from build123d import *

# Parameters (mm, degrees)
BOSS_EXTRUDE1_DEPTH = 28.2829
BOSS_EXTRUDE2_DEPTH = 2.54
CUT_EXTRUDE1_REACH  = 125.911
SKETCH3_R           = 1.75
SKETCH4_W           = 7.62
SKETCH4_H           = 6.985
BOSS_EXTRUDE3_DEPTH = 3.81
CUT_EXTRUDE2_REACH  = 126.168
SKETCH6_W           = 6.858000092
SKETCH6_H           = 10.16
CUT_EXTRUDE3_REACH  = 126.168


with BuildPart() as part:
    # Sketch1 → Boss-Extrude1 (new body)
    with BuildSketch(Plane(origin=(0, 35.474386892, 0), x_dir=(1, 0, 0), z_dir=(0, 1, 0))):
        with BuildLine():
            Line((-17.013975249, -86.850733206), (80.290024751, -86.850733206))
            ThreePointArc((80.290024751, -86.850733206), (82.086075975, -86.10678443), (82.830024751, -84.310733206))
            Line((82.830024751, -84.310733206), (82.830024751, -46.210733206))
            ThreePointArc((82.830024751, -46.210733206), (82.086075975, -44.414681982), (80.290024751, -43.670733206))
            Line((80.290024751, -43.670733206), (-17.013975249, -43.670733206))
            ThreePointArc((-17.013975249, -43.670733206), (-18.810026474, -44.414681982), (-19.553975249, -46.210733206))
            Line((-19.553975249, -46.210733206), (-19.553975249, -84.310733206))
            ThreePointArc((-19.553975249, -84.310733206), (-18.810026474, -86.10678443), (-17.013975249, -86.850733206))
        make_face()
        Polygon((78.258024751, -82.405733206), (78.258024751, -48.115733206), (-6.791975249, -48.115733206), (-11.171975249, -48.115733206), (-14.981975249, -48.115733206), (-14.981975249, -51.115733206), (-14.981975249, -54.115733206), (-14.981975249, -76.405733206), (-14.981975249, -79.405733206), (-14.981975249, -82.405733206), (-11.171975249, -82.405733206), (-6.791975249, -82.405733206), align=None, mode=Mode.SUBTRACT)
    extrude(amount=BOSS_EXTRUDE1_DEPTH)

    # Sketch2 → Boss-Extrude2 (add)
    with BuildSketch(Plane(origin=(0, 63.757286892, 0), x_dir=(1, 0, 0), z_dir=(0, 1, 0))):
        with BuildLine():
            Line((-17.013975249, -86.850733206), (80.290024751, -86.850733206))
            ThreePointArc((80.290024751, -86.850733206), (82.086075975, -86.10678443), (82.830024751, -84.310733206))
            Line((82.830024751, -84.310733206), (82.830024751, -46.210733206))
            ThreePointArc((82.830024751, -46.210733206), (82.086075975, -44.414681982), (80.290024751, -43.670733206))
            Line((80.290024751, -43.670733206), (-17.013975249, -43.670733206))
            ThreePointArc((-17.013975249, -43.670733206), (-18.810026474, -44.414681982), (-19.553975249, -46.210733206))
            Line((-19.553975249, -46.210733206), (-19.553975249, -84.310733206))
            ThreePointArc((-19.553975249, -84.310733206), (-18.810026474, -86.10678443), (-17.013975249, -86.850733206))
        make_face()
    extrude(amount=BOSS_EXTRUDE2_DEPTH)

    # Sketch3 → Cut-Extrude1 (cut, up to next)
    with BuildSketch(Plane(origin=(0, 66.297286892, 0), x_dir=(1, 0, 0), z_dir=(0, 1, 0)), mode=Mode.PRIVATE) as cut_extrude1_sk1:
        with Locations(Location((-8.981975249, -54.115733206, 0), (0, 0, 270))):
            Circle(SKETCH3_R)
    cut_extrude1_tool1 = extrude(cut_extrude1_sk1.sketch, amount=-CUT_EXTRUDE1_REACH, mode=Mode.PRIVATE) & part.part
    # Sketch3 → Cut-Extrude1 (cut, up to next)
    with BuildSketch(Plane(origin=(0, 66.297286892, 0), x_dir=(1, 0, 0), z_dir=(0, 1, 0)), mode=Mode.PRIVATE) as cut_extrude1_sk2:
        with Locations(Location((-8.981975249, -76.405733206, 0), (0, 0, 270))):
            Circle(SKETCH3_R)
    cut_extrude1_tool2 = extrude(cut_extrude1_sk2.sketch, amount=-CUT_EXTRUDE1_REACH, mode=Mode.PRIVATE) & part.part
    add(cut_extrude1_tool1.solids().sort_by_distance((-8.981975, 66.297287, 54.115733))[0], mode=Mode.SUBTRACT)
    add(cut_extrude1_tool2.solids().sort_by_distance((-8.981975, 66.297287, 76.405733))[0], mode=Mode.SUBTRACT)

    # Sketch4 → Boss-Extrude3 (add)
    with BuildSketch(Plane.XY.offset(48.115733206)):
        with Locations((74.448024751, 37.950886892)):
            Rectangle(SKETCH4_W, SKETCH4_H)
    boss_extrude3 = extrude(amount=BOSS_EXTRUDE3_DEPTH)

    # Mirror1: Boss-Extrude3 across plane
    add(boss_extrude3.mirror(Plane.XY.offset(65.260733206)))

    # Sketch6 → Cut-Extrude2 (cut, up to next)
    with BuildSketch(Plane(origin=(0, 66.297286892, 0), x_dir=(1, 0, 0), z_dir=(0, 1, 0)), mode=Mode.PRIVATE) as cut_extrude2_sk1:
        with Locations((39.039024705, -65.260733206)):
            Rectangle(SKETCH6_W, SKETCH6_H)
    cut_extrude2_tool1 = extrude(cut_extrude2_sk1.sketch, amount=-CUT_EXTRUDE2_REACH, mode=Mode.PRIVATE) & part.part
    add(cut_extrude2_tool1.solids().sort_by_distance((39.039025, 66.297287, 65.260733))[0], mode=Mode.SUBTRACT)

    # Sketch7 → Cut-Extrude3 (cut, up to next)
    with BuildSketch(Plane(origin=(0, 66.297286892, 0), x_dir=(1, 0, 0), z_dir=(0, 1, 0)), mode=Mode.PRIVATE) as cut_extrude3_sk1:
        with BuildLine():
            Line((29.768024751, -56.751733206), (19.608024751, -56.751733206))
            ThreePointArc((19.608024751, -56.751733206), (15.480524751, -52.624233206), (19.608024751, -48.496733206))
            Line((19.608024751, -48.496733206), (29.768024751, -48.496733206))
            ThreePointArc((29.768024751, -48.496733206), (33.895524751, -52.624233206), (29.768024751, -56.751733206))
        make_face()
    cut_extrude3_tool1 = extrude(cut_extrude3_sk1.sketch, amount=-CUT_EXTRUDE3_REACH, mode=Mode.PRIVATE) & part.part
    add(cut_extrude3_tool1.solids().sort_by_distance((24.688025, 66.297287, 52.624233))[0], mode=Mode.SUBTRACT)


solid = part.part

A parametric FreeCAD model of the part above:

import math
import FreeCAD as App
import Part
import Sketcher
from FreeCAD import Vector
Q = App.Units.Quantity

doc = App.newDocument("Part")
body = doc.addObject("PartDesign::Body", "Body")

sketch1 = doc.addObject("Sketcher::SketchObject", "Sketch")
body.addObject(sketch1)
sketch1.AttachmentSupport = (doc.XZ_Plane, [""])
sketch1.MapMode = "FlatFace"
sketch1.AttachmentOffset = App.Placement(Vector(0, 0, -35.474387), App.Rotation())
sketch1.addGeometry([
    Part.LineSegment(Vector(-17, 86.9, 0), Vector(80.3, 86.9, 0)),
    Part.ArcOfCircle(Part.Circle(Vector(80.3, 84.3, 0), Vector(0, 0, 1), 2.5), math.radians(0), math.radians(90)),
    Part.LineSegment(Vector(82.8, 84.3, 0), Vector(82.8, 46.2, 0)),
    Part.ArcOfCircle(Part.Circle(Vector(80.3, 46.2, 0), Vector(0, 0, 1), 2.5), math.radians(-90), math.radians(0)),
    Part.LineSegment(Vector(80.3, 43.7, 0), Vector(-17, 43.7, 0)),
    Part.ArcOfCircle(Part.Circle(Vector(-17, 46.2, 0), Vector(0, 0, 1), 2.5), math.radians(180), math.radians(270)),
    Part.LineSegment(Vector(-19.6, 46.2, 0), Vector(-19.6, 84.3, 0)),
    Part.ArcOfCircle(Part.Circle(Vector(-17, 84.3, 0), Vector(0, 0, 1), 2.5), math.radians(90), math.radians(180)),
    Part.LineSegment(Vector(78.3, 48.1, 0), Vector(78.3, 82.4, 0)),
    Part.LineSegment(Vector(78.3, 82.4, 0), Vector(-15, 82.4, 0)),
    Part.LineSegment(Vector(-15, 82.4, 0), Vector(-15, 48.1, 0)),
    Part.LineSegment(Vector(-15, 48.1, 0), Vector(78.3, 48.1, 0)),
], False)
sketch1.addConstraint([
    Sketcher.Constraint("Tangent", 0, 2, 1, 2),
    Sketcher.Constraint("Tangent", 1, 1, 2, 1),
    Sketcher.Constraint("Tangent", 2, 2, 3, 2),
    Sketcher.Constraint("Tangent", 3, 1, 4, 1),
    Sketcher.Constraint("Tangent", 4, 2, 5, 2),
    Sketcher.Constraint("Tangent", 5, 1, 6, 1),
    Sketcher.Constraint("Tangent", 6, 2, 7, 2),
    Sketcher.Constraint("Tangent", 7, 1, 0, 1),
    Sketcher.Constraint("Coincident", 8, 2, 9, 1),
    Sketcher.Constraint("Coincident", 9, 2, 10, 1),
    Sketcher.Constraint("Coincident", 10, 2, 11, 1),
    Sketcher.Constraint("Coincident", 11, 2, 8, 1),
    Sketcher.Constraint("Horizontal", 0),
    Sketcher.Constraint("Vertical", 2),
    Sketcher.Constraint("Horizontal", 4),
    Sketcher.Constraint("Vertical", 6),
    Sketcher.Constraint("Vertical", 8),
    Sketcher.Constraint("Horizontal", 9),
    Sketcher.Constraint("Vertical", 10),
    Sketcher.Constraint("Horizontal", 11),
    Sketcher.Constraint("Equal", 1, 3),
    Sketcher.Constraint("Equal", 3, 5),
    Sketcher.Constraint("Equal", 5, 7),
    Sketcher.Constraint("Radius", 1, Q("0.1 in")),
    Sketcher.Constraint("DistanceY", 2, 2, 2, 1, Q("1.5 in")),
    Sketcher.Constraint("DistanceY", 8, 1, 8, 2, Q("1.35 in")),
    Sketcher.Constraint("DistanceX", 8, 2, 1, 3, Q("0.08 in")),
    Sketcher.Constraint("DistanceX", 7, 3, 9, 2, Q("0.08 in")),
    Sketcher.Constraint("DistanceY", 8, 2, 1, 3, Q("0.075 in")),
    Sketcher.Constraint("DistanceX", 0, 1, 0, 2, 97.304),
    Sketcher.Constraint("DistanceX", -1, 1, 1, 3, 80.290025),
    Sketcher.Constraint("DistanceY", -1, 1, 1, 3, 84.310733),
])
pad1 = doc.addObject("PartDesign::Pad", "Pad")
body.addObject(pad1)
pad1.Profile = sketch1
pad1.Length = Q("1.1135 in")
pad1.Reversed = True

sketch2 = doc.addObject("Sketcher::SketchObject", "Sketch001")
body.addObject(sketch2)
sketch2.AttachmentSupport = (doc.XZ_Plane, [""])
sketch2.MapMode = "FlatFace"
sketch2.AttachmentOffset = App.Placement(Vector(0, 0, -63.757287), App.Rotation())
sketch2.addGeometry([
    Part.LineSegment(Vector(-17, 86.9, 0), Vector(80.3, 86.9, 0)),
    Part.ArcOfCircle(Part.Circle(Vector(80.3, 84.3, 0), Vector(0, 0, 1), 2.5), math.radians(0), math.radians(90)),
    Part.LineSegment(Vector(82.8, 84.3, 0), Vector(82.8, 46.2, 0)),
    Part.ArcOfCircle(Part.Circle(Vector(80.3, 46.2, 0), Vector(0, 0, 1), 2.5), math.radians(-90), math.radians(0)),
    Part.LineSegment(Vector(80.3, 43.7, 0), Vector(-17, 43.7, 0)),
    Part.ArcOfCircle(Part.Circle(Vector(-17, 46.2, 0), Vector(0, 0, 1), 2.5), math.radians(180), math.radians(270)),
    Part.LineSegment(Vector(-19.6, 46.2, 0), Vector(-19.6, 84.3, 0)),
    Part.ArcOfCircle(Part.Circle(Vector(-17, 84.3, 0), Vector(0, 0, 1), 2.5), math.radians(90), math.radians(180)),
], False)
sketch2.addConstraint([
    Sketcher.Constraint("Tangent", 0, 2, 1, 2),
    Sketcher.Constraint("Tangent", 1, 1, 2, 1),
    Sketcher.Constraint("Tangent", 2, 2, 3, 2),
    Sketcher.Constraint("Tangent", 3, 1, 4, 1),
    Sketcher.Constraint("Tangent", 4, 2, 5, 2),
    Sketcher.Constraint("Tangent", 5, 1, 6, 1),
    Sketcher.Constraint("Tangent", 6, 2, 7, 2),
    Sketcher.Constraint("Tangent", 7, 1, 0, 1),
    Sketcher.Constraint("Horizontal", 0),
    Sketcher.Constraint("Vertical", 2),
    Sketcher.Constraint("Horizontal", 4),
    Sketcher.Constraint("Vertical", 6),
    Sketcher.Constraint("Equal", 1, 3),
    Sketcher.Constraint("Equal", 3, 5),
    Sketcher.Constraint("Equal", 5, 7),
    Sketcher.Constraint("Radius", 1, Q("0.1 in")),
    Sketcher.Constraint("DistanceY", 2, 2, 2, 1, Q("1.5 in")),
    Sketcher.Constraint("DistanceX", 0, 1, 0, 2, 97.304),
    Sketcher.Constraint("DistanceX", -1, 1, 1, 3, 80.290025),
    Sketcher.Constraint("DistanceY", -1, 1, 1, 3, 84.310733),
])
pad2 = doc.addObject("PartDesign::Pad", "Pad001")
body.addObject(pad2)
pad2.Profile = sketch2
pad2.Length = Q("0.1 in")
pad2.Reversed = True

sketch3 = doc.addObject("Sketcher::SketchObject", "Sketch002")
body.addObject(sketch3)
sketch3.AttachmentSupport = (doc.XZ_Plane, [""])
sketch3.MapMode = "FlatFace"
sketch3.AttachmentOffset = App.Placement(Vector(0, 0, -66.297287), App.Rotation())
sketch3.addGeometry(Part.Circle(Vector(-9, 54.1, 0), Vector(0, 0, 1), 1.8), False)
sketch3.addConstraint([
    Sketcher.Constraint("Diameter", 0, 3.5),
    Sketcher.Constraint("DistanceX", 0, 3, -1, 1, 8.981975),
    Sketcher.Constraint("DistanceY", -1, 1, 0, 3, 54.115733),
])
pocket1 = doc.addObject("PartDesign::Pocket", "Pocket")
body.addObject(pocket1)
pocket1.Profile = sketch3
pocket1.Type = "UpToFirst"
pocket1.Reversed = True

sketch4 = doc.addObject("Sketcher::SketchObject", "Sketch003")
body.addObject(sketch4)
sketch4.AttachmentSupport = (doc.XZ_Plane, [""])
sketch4.MapMode = "FlatFace"
sketch4.AttachmentOffset = App.Placement(Vector(0, 0, -66.297287), App.Rotation())
sketch4.addGeometry(Part.Circle(Vector(-9, 76.4, 0), Vector(0, 0, 1), 1.8), False)
sketch4.addConstraint([
    Sketcher.Constraint("Diameter", 0, 3.5),
    Sketcher.Constraint("DistanceX", 0, 3, -1, 1, 8.981975),
    Sketcher.Constraint("DistanceY", -1, 1, 0, 3, 76.405733),
])
pocket2 = doc.addObject("PartDesign::Pocket", "Pocket001")
body.addObject(pocket2)
pocket2.Profile = sketch4
pocket2.Type = "UpToFirst"
pocket2.Reversed = True

sketch5 = doc.addObject("Sketcher::SketchObject", "Sketch004")
body.addObject(sketch5)
sketch5.AttachmentSupport = (doc.XY_Plane, [""])
sketch5.MapMode = "FlatFace"
sketch5.AttachmentOffset = App.Placement(Vector(0, 0, 48.115733), App.Rotation())
sketch5.addGeometry([
    Part.LineSegment(Vector(71, 41, 0), Vector(71, 34, 0)),
    Part.LineSegment(Vector(71, 34, 0), Vector(78, 34, 0)),
    Part.LineSegment(Vector(78, 34, 0), Vector(78, 41, 0)),
    Part.LineSegment(Vector(78, 41, 0), Vector(71, 41, 0)),
], False)
sketch5.addConstraint([
    Sketcher.Constraint("Coincident", 0, 2, 1, 1),
    Sketcher.Constraint("Coincident", 1, 2, 2, 1),
    Sketcher.Constraint("Coincident", 2, 2, 3, 1),
    Sketcher.Constraint("Coincident", 3, 2, 0, 1),
    Sketcher.Constraint("Vertical", 0),
    Sketcher.Constraint("Horizontal", 1),
    Sketcher.Constraint("Vertical", 2),
    Sketcher.Constraint("Horizontal", 3),
    Sketcher.Constraint("DistanceX", 1, 1, 1, 2, Q("0.3 in")),
    Sketcher.Constraint("DistanceY", 0, 2, 0, 1, Q("0.275 in")),
    Sketcher.Constraint("DistanceX", -1, 1, 0, 2, 70.638025),
    Sketcher.Constraint("DistanceY", -1, 1, 0, 2, 34.458387),
])
pad3 = doc.addObject("PartDesign::Pad", "Pad002")
body.addObject(pad3)
pad3.Profile = sketch5
pad3.Length = Q("0.15 in")
doc.recompute()

datumplane = doc.addObject("PartDesign::Plane", "DatumPlane")
body.addObject(datumplane)
datumplane.AttachmentSupport = (doc.XY_Plane, [""])
datumplane.MapMode = "FlatFace"
datumplane.AttachmentOffset = App.Placement(Vector(0, 0, 65.260733), App.Rotation())
mirrored = doc.addObject("PartDesign::Mirrored", "Mirrored")
body.addObject(mirrored)
mirrored.Originals = [pad3]
mirrored.MirrorPlane = (datumplane, [""])
body.Tip = mirrored

sketch6 = doc.addObject("Sketcher::SketchObject", "Sketch005")
body.addObject(sketch6)
sketch6.AttachmentSupport = (doc.XZ_Plane, [""])
sketch6.MapMode = "FlatFace"
sketch6.AttachmentOffset = App.Placement(Vector(0, 0, -66.297287), App.Rotation())
sketch6.addGeometry([
    Part.LineSegment(Vector(36, 60, 0), Vector(36, 70, 0)),
    Part.LineSegment(Vector(36, 70, 0), Vector(42, 70, 0)),
    Part.LineSegment(Vector(42, 70, 0), Vector(42, 60, 0)),
    Part.LineSegment(Vector(42, 60, 0), Vector(36, 60, 0)),
], False)
sketch6.addConstraint([
    Sketcher.Constraint("Coincident", 0, 2, 1, 1),
    Sketcher.Constraint("Coincident", 1, 2, 2, 1),
    Sketcher.Constraint("Coincident", 2, 2, 3, 1),
    Sketcher.Constraint("Coincident", 3, 2, 0, 1),
    Sketcher.Constraint("Vertical", 0),
    Sketcher.Constraint("Horizontal", 1),
    Sketcher.Constraint("Vertical", 2),
    Sketcher.Constraint("Horizontal", 3),
    Sketcher.Constraint("DistanceY", 0, 1, 0, 2, Q("0.4 in")),
    Sketcher.Constraint("DistanceX", 1, 1, 1, 2, Q("0.27 in")),
    Sketcher.Constraint("DistanceX", -1, 1, 0, 2, 35.610025),
    Sketcher.Constraint("DistanceY", -1, 1, 0, 2, 70.340733),
])
pocket3 = doc.addObject("PartDesign::Pocket", "Pocket002")
body.addObject(pocket3)
pocket3.Profile = sketch6
pocket3.Type = "UpToFirst"
pocket3.Reversed = True

sketch7 = doc.addObject("Sketcher::SketchObject", "Sketch006")
body.addObject(sketch7)
sketch7.AttachmentSupport = (doc.XZ_Plane, [""])
sketch7.MapMode = "FlatFace"
sketch7.AttachmentOffset = App.Placement(Vector(0, 0, -66.297287), App.Rotation())
sketch7.addGeometry([
    Part.LineSegment(Vector(19.6, 56.8, 0), Vector(29.8, 56.8, 0)),
    Part.ArcOfCircle(Part.Circle(Vector(29.8, 52.6, 0), Vector(0, 0, 1), 4.1), math.radians(-90), math.radians(90)),
    Part.LineSegment(Vector(29.8, 48.5, 0), Vector(19.6, 48.5, 0)),
    Part.ArcOfCircle(Part.Circle(Vector(19.6, 52.6, 0), Vector(0, 0, 1), 4.1), math.radians(90), math.radians(270)),
], False)
sketch7.addConstraint([
    Sketcher.Constraint("Tangent", 0, 2, 1, 2),
    Sketcher.Constraint("Tangent", 1, 1, 2, 1),
    Sketcher.Constraint("Tangent", 2, 2, 3, 2),
    Sketcher.Constraint("Tangent", 3, 1, 0, 1),
    Sketcher.Constraint("Horizontal", 0),
    Sketcher.Constraint("Horizontal", 2),
    Sketcher.Constraint("DistanceX", 0, 1, 0, 2, Q("0.4 in")),
    Sketcher.Constraint("Radius", 1, Q("0.1625 in")),
    Sketcher.Constraint("DistanceX", -1, 1, 1, 3, 29.768025),
    Sketcher.Constraint("DistanceY", -1, 1, 1, 3, 52.624233),
])
pocket4 = doc.addObject("PartDesign::Pocket", "Pocket003")
body.addObject(pocket4)
pocket4.Profile = sketch7
pocket4.Type = "UpToFirst"
pocket4.Reversed = True

doc.recompute()
